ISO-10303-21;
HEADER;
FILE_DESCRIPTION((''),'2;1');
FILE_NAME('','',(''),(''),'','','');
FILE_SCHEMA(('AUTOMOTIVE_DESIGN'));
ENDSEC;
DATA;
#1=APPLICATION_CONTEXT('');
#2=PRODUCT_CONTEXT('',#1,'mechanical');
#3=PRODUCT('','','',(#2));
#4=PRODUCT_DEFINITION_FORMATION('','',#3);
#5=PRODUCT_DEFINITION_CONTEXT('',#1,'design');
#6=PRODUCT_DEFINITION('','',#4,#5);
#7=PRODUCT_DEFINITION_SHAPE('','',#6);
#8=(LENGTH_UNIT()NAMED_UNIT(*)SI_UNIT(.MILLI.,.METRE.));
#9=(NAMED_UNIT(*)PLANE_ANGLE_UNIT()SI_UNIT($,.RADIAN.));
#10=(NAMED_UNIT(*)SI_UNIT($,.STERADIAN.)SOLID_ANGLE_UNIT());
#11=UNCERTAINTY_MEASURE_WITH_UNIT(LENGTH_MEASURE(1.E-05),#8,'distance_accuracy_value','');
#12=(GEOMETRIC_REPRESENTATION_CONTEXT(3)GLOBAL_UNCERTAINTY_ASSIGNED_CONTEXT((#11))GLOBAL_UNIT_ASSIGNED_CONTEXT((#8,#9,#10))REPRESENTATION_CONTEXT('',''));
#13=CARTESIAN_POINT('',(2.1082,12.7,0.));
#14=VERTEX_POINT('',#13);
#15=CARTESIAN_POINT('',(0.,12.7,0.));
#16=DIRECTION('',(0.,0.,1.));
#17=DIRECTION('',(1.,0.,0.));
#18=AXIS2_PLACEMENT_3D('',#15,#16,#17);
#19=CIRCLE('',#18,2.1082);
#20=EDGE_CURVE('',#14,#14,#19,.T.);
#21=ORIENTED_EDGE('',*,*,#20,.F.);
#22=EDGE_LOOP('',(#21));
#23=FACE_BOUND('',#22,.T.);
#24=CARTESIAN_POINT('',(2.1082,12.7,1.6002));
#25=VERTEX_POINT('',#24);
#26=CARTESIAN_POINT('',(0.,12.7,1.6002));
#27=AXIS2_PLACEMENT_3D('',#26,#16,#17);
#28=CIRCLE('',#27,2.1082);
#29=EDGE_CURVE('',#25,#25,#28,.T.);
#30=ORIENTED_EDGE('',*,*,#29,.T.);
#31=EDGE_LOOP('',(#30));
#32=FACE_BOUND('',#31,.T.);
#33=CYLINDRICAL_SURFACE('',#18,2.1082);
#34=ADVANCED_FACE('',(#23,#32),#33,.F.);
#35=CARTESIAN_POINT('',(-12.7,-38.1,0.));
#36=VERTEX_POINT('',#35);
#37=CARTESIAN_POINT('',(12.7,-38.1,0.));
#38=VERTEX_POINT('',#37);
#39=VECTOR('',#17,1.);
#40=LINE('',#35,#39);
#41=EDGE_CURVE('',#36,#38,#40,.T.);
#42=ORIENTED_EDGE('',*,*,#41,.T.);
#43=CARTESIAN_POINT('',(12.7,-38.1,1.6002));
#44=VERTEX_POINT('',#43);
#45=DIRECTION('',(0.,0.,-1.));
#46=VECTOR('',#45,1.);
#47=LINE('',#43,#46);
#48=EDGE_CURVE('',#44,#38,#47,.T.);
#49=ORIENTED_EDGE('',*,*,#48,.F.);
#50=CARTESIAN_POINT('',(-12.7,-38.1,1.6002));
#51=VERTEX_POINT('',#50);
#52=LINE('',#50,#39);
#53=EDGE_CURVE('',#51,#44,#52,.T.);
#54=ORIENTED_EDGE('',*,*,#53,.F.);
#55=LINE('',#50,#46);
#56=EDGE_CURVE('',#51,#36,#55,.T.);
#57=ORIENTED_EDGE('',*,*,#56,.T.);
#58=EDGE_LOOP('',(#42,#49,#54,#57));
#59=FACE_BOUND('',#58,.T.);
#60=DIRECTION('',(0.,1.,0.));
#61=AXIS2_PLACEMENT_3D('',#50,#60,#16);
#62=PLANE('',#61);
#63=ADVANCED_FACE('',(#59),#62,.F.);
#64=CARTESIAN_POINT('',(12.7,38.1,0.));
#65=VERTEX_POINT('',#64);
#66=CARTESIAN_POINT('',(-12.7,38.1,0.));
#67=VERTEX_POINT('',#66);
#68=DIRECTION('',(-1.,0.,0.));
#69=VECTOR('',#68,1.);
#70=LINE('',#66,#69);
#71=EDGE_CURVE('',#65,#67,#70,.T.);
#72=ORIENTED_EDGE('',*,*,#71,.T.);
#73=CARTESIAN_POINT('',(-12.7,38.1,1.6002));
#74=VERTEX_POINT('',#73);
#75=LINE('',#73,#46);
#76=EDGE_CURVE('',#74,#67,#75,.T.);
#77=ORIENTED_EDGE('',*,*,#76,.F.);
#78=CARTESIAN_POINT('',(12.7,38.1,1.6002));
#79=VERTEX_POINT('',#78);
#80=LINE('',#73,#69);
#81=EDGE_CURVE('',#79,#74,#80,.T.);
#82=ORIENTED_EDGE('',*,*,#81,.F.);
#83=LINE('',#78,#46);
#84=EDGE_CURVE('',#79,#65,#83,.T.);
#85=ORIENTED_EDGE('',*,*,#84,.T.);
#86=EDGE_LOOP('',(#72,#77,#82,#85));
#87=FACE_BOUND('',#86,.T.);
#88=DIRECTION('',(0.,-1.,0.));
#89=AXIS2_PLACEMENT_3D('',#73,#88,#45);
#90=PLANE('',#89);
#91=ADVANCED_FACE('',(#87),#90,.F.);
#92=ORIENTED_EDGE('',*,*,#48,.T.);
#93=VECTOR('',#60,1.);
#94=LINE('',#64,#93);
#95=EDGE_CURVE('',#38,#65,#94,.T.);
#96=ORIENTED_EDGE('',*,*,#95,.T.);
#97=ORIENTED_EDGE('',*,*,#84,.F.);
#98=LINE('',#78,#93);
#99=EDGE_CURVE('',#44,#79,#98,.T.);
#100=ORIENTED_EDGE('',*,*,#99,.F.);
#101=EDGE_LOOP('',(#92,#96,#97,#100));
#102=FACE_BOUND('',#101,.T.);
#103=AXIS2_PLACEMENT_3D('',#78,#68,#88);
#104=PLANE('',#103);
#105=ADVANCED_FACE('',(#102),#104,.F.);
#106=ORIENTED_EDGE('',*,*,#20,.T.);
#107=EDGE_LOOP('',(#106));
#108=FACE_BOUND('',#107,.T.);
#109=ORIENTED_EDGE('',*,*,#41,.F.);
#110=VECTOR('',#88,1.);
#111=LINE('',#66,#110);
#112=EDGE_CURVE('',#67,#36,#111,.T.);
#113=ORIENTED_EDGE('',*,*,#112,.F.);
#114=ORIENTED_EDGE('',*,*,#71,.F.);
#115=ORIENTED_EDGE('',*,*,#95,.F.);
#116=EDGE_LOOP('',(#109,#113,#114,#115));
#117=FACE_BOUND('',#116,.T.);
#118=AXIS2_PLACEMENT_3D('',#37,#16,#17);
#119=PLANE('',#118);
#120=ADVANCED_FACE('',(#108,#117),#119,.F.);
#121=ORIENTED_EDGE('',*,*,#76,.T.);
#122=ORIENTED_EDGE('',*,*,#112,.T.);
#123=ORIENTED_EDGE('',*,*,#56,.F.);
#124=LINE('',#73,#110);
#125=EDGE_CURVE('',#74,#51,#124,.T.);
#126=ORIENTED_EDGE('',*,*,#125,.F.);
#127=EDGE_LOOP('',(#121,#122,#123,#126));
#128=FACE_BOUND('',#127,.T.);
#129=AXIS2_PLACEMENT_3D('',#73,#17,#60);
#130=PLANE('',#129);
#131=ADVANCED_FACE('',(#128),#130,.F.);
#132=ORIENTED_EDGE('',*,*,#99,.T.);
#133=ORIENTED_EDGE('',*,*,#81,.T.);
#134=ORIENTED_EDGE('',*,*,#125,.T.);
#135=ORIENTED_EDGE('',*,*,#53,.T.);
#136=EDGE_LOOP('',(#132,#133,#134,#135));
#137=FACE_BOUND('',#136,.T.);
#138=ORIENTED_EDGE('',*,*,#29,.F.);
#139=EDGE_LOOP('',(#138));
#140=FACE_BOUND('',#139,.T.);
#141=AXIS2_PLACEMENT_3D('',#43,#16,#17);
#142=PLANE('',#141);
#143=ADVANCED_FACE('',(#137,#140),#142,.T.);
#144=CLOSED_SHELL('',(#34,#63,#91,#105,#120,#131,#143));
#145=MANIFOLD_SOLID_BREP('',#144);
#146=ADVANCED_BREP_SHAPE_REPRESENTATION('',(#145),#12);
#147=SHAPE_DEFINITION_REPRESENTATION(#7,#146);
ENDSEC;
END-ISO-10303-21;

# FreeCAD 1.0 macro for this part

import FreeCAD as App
import Part
import Sketcher

V = App.Vector
Q = App.Units.Quantity

doc = App.newDocument("Part")
body = doc.addObject("PartDesign::Body", "Body")

# Sketch on XY plane
sketch1 = body.newObject("Sketcher::SketchObject", "Sketch")
sketch1.AttachmentSupport = (doc.getObject("XY_Plane"), [""])
sketch1.MapMode = "FlatFace"
sketch1.addGeometry(Part.LineSegment(V(-12.7, 38.1, 0), V(-12.7, -38.1, 0)), False)
sketch1.addGeometry(Part.LineSegment(V(-12.7, -38.1, 0), V(12.7, -38.1, 0)), False)
sketch1.addGeometry(Part.LineSegment(V(12.7, -38.1, 0), V(12.7, 38.1, 0)), False)
sketch1.addGeometry(Part.LineSegment(V(12.7, 38.1, 0), V(-12.7, 38.1, 0)), False)
sketch1.addConstraint(Sketcher.Constraint("Coincident", 0, 2, 1, 1))
sketch1.addConstraint(Sketcher.Constraint("Coincident", 1, 2, 2, 1))
sketch1.addConstraint(Sketcher.Constraint("Coincident", 2, 2, 3, 1))
sketch1.addConstraint(Sketcher.Constraint("Coincident", 3, 2, 0, 1))
sketch1.addConstraint(Sketcher.Constraint("Vertical", 0))
sketch1.addConstraint(Sketcher.Constraint("Horizontal", 1))
sketch1.addConstraint(Sketcher.Constraint("Vertical", 2))
sketch1.addConstraint(Sketcher.Constraint("Horizontal", 3))
sketch1.addConstraint(Sketcher.Constraint("Symmetric", 0, 2, 2, 2, -1, 1))
sketch1.addConstraint(Sketcher.Constraint("DistanceX", 1, 1, 1, 2, Q("1 in")))
sketch1.addConstraint(Sketcher.Constraint("DistanceY", 0, 2, 0, 1, Q("3 in")))
pad1 = body.newObject("PartDesign::Pad", "Pad")
pad1.Profile = sketch1
pad1.Length = Q("0.063 in")

# Sketch on XY plane
sketch2 = body.newObject("Sketcher::SketchObject", "Sketch001")
sketch2.AttachmentSupport = (doc.getObject("XY_Plane"), [""])
sketch2.MapMode = "FlatFace"
sketch2.AttachmentOffset = App.Placement(V(0, 0, 0.063 * 25.4), App.Rotation())
sketch2.addGeometry(Part.Circle(V(0, 12.7, 0), V(0, 0, 1), 2.1082), False)
sketch2.addConstraint(Sketcher.Constraint("PointOnObject", 0, 3, -2))
sketch2.addConstraint(Sketcher.Constraint("Diameter", 0, Q("0.166 in")))
sketch2.addConstraint(Sketcher.Constraint("DistanceY", -1, 1, 0, 3, Q("0.5 in")))
pocket1 = body.newObject("PartDesign::Pocket", "Pocket")
pocket1.Profile = sketch2
pocket1.Length = Q("0.063 in")

doc.recompute()
